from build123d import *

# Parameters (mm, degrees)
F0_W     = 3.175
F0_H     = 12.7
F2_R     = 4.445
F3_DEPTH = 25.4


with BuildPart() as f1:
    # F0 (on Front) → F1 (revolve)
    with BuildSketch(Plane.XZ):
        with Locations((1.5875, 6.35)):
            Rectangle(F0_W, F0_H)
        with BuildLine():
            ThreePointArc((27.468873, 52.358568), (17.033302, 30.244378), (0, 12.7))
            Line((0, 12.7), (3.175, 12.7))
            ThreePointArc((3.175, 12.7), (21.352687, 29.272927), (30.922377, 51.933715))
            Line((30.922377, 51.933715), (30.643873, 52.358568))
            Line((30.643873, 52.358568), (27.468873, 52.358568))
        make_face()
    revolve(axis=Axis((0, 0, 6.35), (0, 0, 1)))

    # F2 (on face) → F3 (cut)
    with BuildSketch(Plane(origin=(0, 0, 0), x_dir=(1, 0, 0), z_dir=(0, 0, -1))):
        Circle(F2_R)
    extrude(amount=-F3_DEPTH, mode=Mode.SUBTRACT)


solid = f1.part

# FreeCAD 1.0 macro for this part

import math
import FreeCAD as App
import Part
import Sketcher

V = App.Vector
Q = App.Units.Quantity

doc = App.newDocument("Part")
body = doc.addObject("PartDesign::Body", "Body")

sketch1 = body.newObject("Sketcher::SketchObject", "Sketch")
sketch1.AttachmentSupport = (doc.getObject("XZ_Plane"), [""])
sketch1.MapMode = "FlatFace"
sketch1.addGeometry(Part.LineSegment(V(0, 12.7, 0), V(0, 0, 0)), False)
sketch1.addGeometry(Part.LineSegment(V(0, 0, 0), V(3.2, 0, 0)), False)
sketch1.addGeometry(Part.LineSegment(V(3.2, 0, 0), V(3.2, 12.7, 0)), False)
sketch1.addGeometry(Part.ArcOfCircle(Part.Circle(V(-25.5, 62.4, 0), V(0, 0, 1), 57.4), math.radians(-60), math.radians(-11)), False)
sketch1.addGeometry(Part.LineSegment(V(30.9, 51.9, 0), V(30.6, 52.4, 0)), False)
sketch1.addGeometry(Part.LineSegment(V(30.6, 52.4, 0), V(27.5, 52.4, 0)), False)
sketch1.addGeometry(Part.ArcOfCircle(Part.Circle(V(-44.2, 72.7, 0), V(0, 0, 1), 74.5), math.radians(-54), math.radians(-16)), False)
sketch1.addConstraint(Sketcher.Constraint("Coincident", 0, 2, 1, 1))
sketch1.addConstraint(Sketcher.Constraint("Coincident", 1, 2, 2, 1))
sketch1.addConstraint(Sketcher.Constraint("Coincident", 2, 2, 3, 1))
sketch1.addConstraint(Sketcher.Constraint("Coincident", 3, 2, 4, 1))
sketch1.addConstraint(Sketcher.Constraint("Coincident", 4, 2, 5, 1))
sketch1.addConstraint(Sketcher.Constraint("Coincident", 5, 2, 6, 2))
sketch1.addConstraint(Sketcher.Constraint("Coincident", 6, 1, 0, 1))
sketch1.addConstraint(Sketcher.Constraint("Vertical", 0))
sketch1.addConstraint(Sketcher.Constraint("Horizontal", 1))
sketch1.addConstraint(Sketcher.Constraint("Vertical", 2))
sketch1.addConstraint(Sketcher.Constraint("Horizontal", 5))
sketch1.addConstraint(Sketcher.Constraint("Coincident", 0, 2, -1, 1))
sketch1.addConstraint(Sketcher.Constraint("Horizontal", 2, 2, 6, 1))
sketch1.addConstraint(Sketcher.Constraint("Equal", 1, 5))
sketch1.addConstraint(Sketcher.Constraint("DistanceY", 0, 2, 0, 1, Q("0.5 in")))
sketch1.addConstraint(Sketcher.Constraint("Distance", 4, Q("0.02 in")))
sketch1.addConstraint(Sketcher.Constraint("DistanceX", 1, 1, 1, 2, Q("0.125 in")))
sketch1.addConstraint(Sketcher.Constraint("Radius", 3, 57.391363))
sketch1.addConstraint(Sketcher.Constraint("Radius", 6, 74.502184))
sketch1.addConstraint(Sketcher.Constraint("DistanceY", -1, 1, 3, 3, 62.411788))
sketch1.addConstraint(Sketcher.Constraint("DistanceX", 6, 3, 3, 3, 18.70808))
sketch1.addConstraint(Sketcher.Constraint("DistanceY", 3, 2, 6, 3, 20.731558))
revolution = body.newObject("PartDesign::Revolution", "Revolution")
revolution.Profile = sketch1
revolution.ReferenceAxis = (sketch1, ["V_Axis"])
revolution.Angle = 360

sketch2 = body.newObject("Sketcher::SketchObject", "Sketch001")
sketch2.AttachmentSupport = (doc.getObject("XY_Plane"), [""])
sketch2.MapMode = "FlatFace"
sketch2.addGeometry(Part.Circle(V(0, 0, 0), V(0, 0, 1), 4.4), False)
sketch2.addConstraint(Sketcher.Constraint("Coincident", 0, 3, -1, 1))
sketch2.addConstraint(Sketcher.Constraint("Diameter", 0, Q("0.35 in")))
pocket1 = body.newObject("PartDesign::Pocket", "Pocket")
pocket1.Profile = sketch2
pocket1.Length = Q("1 in")
pocket1.Reversed = True

doc.recompute()
